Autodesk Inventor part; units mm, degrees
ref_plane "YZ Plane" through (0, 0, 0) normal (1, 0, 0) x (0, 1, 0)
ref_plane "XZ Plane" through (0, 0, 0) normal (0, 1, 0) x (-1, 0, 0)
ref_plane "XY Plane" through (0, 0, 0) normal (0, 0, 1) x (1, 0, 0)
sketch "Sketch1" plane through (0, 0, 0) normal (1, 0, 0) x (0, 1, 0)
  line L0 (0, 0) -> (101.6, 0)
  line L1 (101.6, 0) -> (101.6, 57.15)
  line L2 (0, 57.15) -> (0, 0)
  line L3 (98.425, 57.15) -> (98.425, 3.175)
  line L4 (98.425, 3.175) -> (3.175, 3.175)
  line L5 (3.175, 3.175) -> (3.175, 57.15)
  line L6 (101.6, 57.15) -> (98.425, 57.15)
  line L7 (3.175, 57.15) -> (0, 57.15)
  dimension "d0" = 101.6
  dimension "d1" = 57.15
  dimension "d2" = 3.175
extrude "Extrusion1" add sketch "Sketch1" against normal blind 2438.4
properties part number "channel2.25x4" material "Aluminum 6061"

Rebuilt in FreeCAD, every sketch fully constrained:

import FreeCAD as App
import Part
import Sketcher

V = App.Vector
Q = App.Units.Quantity

doc = App.newDocument("Part")
body = doc.addObject("PartDesign::Body", "Body")

# Sketch on YZ plane
sketch1 = body.newObject("Sketcher::SketchObject", "Sketch")
sketch1.AttachmentSupport = (doc.getObject("YZ_Plane"), [""])
sketch1.MapMode = "FlatFace"
sketch1.addGeometry([
    Part.LineSegment(V(0, 57.1, 0), V(0, 0, 0)),  # 0
    Part.LineSegment(V(0, 0, 0), V(101.6, 0, 0)),  # 1
    Part.LineSegment(V(101.6, 0, 0), V(101.6, 57.1, 0)),  # 2
    Part.LineSegment(V(101.6, 57.1, 0), V(98.4, 57.1, 0)),  # 3
    Part.LineSegment(V(98.4, 57.1, 0), V(98.4, 3.2, 0)),  # 4
    Part.LineSegment(V(98.4, 3.2, 0), V(3.2, 3.2, 0)),  # 5
    Part.LineSegment(V(3.2, 3.2, 0), V(3.2, 57.1, 0)),  # 6
    Part.LineSegment(V(3.2, 57.1, 0), V(0, 57.1, 0)),  # 7
], False)
sketch1.addConstraint([
    Sketcher.Constraint("Coincident", 0, 2, 1, 1),
    Sketcher.Constraint("Coincident", 1, 2, 2, 1),
    Sketcher.Constraint("Coincident", 2, 2, 3, 1),
    Sketcher.Constraint("Coincident", 3, 2, 4, 1),
    Sketcher.Constraint("Coincident", 4, 2, 5, 1),
    Sketcher.Constraint("Coincident", 5, 2, 6, 1),
    Sketcher.Constraint("Coincident", 6, 2, 7, 1),
    Sketcher.Constraint("Coincident", 7, 2, 0, 1),
    Sketcher.Constraint("Vertical", 0),
    Sketcher.Constraint("Horizontal", 1),
    Sketcher.Constraint("Vertical", 2),
    Sketcher.Constraint("Horizontal", 3),
    Sketcher.Constraint("Vertical", 4),
    Sketcher.Constraint("Horizontal", 5),
    Sketcher.Constraint("Vertical", 6),
    Sketcher.Constraint("Horizontal", 7),
    Sketcher.Constraint("Coincident", 0, 2, -1, 1),
    Sketcher.Constraint("Horizontal", 3, 2, 6, 2),
    Sketcher.Constraint("Equal", 3, 7),
    Sketcher.Constraint("DistanceX", 1, 1, 1, 2, Q("4 in")),
    Sketcher.Constraint("DistanceY", 0, 2, 0, 1, Q("2.25 in")),
    Sketcher.Constraint("DistanceX", 3, 2, 3, 1, Q("0.125 in")),
    Sketcher.Constraint("DistanceY", -1, 1, 4, 2, Q("0.125 in")),
])
pad1 = body.newObject("PartDesign::Pad", "Pad")
pad1.Profile = sketch1
pad1.Length = Q("96 in")
pad1.Reversed = True

doc.recompute()
